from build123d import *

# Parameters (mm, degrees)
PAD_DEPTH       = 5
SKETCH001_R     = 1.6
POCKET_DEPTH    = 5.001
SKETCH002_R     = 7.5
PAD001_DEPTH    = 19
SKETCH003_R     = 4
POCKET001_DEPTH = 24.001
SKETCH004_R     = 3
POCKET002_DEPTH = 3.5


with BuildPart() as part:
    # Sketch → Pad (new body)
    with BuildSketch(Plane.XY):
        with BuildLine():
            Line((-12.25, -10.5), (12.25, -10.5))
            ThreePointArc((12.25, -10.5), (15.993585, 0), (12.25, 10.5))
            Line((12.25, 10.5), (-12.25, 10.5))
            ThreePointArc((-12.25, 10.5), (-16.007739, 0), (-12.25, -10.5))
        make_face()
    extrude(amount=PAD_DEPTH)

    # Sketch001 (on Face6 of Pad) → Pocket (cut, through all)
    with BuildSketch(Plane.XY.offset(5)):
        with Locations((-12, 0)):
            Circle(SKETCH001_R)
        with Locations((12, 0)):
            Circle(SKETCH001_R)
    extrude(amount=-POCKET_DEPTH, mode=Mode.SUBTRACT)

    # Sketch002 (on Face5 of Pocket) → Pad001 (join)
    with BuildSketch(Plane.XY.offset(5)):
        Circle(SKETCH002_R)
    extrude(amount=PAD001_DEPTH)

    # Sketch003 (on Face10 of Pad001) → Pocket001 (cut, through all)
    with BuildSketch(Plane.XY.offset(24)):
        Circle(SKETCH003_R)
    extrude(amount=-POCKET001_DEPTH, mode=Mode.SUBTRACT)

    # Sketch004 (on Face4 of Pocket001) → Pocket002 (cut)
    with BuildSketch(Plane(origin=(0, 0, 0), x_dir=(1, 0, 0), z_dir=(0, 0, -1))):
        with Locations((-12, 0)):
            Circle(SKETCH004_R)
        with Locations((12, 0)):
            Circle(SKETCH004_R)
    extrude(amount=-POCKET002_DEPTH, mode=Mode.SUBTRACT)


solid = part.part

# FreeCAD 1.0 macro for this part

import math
import FreeCAD as App
import Part
import Sketcher

V = App.Vector
Q = App.Units.Quantity

doc = App.newDocument("Part")
body = doc.addObject("PartDesign::Body", "Body")

sketch1 = body.newObject("Sketcher::SketchObject", "Sketch")
sketch1.AttachmentSupport = (doc.getObject("XY_Plane"), [""])
sketch1.MapMode = "FlatFace"
sketch1.addGeometry([
    Part.LineSegment(V(-12.25, -10.5, 0), V(12.25, -10.5, 0)),
    Part.ArcOfCircle(Part.Circle(V(-0.603397, 0, 0), V(0, 0, 1), 16.596982), math.radians(-39.245546), math.radians(39.245546)),
    Part.LineSegment(V(12.25, 10.5, 0), V(-12.25, 10.5, 0)),
    Part.ArcOfCircle(Part.Circle(V(0.540856, 0, 0), V(0, 0, 1), 16.548595), math.radians(140.617464), math.radians(219.382536)),
], False)
sketch1.addConstraint([
    Sketcher.Constraint("Coincident", 0, 2, 1, 1),
    Sketcher.Constraint("Coincident", 1, 2, 2, 1),
    Sketcher.Constraint("Coincident", 2, 2, 3, 1),
    Sketcher.Constraint("Coincident", 3, 2, 0, 1),
    Sketcher.Constraint("Horizontal", 0),
    Sketcher.Constraint("Horizontal", 2),
    Sketcher.Constraint("Symmetric", 0, 2, 2, 2, -1, 1),
    Sketcher.Constraint("PointOnObject", 1, 3, -1),
    Sketcher.Constraint("PointOnObject", 3, 3, -1),
    Sketcher.Constraint("DistanceX", 0, 1, 0, 2, Q("24.5 mm")),
    Sketcher.Constraint("DistanceY", 0, 2, 1, 2, Q("21 mm")),
    Sketcher.Constraint("Radius", 1, Q("16.596982 mm")),
    Sketcher.Constraint("Radius", 3, Q("16.548595 mm")),
])
pad1 = body.newObject("PartDesign::Pad", "Pad")
pad1.Profile = sketch1
pad1.Length = 5

sketch2 = body.newObject("Sketcher::SketchObject", "Sketch001")
sketch2.AttachmentSupport = (doc.getObject("XY_Plane"), [""])
sketch2.MapMode = "FlatFace"
sketch2.AttachmentOffset = App.Placement(V(0, 0, 5), App.Rotation())
sketch2.addGeometry([
    Part.Circle(V(-12, 0, 0), V(0, 0, 1), 1.6),
    Part.Circle(V(12, 0, 0), V(0, 0, 1), 1.6),
], False)
sketch2.addConstraint([
    Sketcher.Constraint("Equal", 0, 1),
    Sketcher.Constraint("Symmetric", 0, 3, 1, 3, -1, 1),
    Sketcher.Constraint("PointOnObject", 0, 3, -1),
    Sketcher.Constraint("Diameter", 0, Q("3.2 mm")),
    Sketcher.Constraint("DistanceX", 0, 3, -1, 1, Q("12 mm")),
])
pocket1 = body.newObject("PartDesign::Pocket", "Pocket")
pocket1.Profile = sketch2
pocket1.Type = "ThroughAll"

sketch3 = body.newObject("Sketcher::SketchObject", "Sketch002")
sketch3.AttachmentSupport = (doc.getObject("XY_Plane"), [""])
sketch3.MapMode = "FlatFace"
sketch3.AttachmentOffset = App.Placement(V(0, 0, 5), App.Rotation())
sketch3.addGeometry(Part.Circle(V(0, 0, 0), V(0, 0, 1), 7.5), False)
sketch3.addConstraint([
    Sketcher.Constraint("Coincident", 0, 3, -1, 1),
    Sketcher.Constraint("Diameter", 0, Q("15 mm")),
])
pad2 = body.newObject("PartDesign::Pad", "Pad001")
pad2.Profile = sketch3
pad2.Length = 19

sketch4 = body.newObject("Sketcher::SketchObject", "Sketch003")
sketch4.AttachmentSupport = (doc.getObject("XY_Plane"), [""])
sketch4.MapMode = "FlatFace"
sketch4.AttachmentOffset = App.Placement(V(0, 0, 24), App.Rotation())
sketch4.addGeometry(Part.Circle(V(0, 0, 0), V(0, 0, 1), 4), False)
sketch4.addConstraint([
    Sketcher.Constraint("Coincident", 0, 3, -1, 1),
    Sketcher.Constraint("Diameter", 0, Q("8 mm")),
])
pocket2 = body.newObject("PartDesign::Pocket", "Pocket001")
pocket2.Profile = sketch4
pocket2.Type = "ThroughAll"

sketch5 = body.newObject("Sketcher::SketchObject", "Sketch004")
sketch5.AttachmentSupport = (doc.getObject("XY_Plane"), [""])
sketch5.MapMode = "FlatFace"
sketch5.addGeometry([
    Part.Circle(V(-12, 0, 0), V(0, 0, 1), 3),
    Part.Circle(V(12, 0, 0), V(0, 0, 1), 3),
], False)
sketch5.addConstraint([
    Sketcher.Constraint("Equal", 0, 1),
    Sketcher.Constraint("Symmetric", 0, 3, 1, 3, -1, 1),
    Sketcher.Constraint("PointOnObject", 0, 3, -1),
    Sketcher.Constraint("Diameter", 0, Q("6 mm")),
    Sketcher.Constraint("DistanceX", 0, 3, -1, 1, Q("12 mm")),
])
pocket3 = body.newObject("PartDesign::Pocket", "Pocket002")
pocket3.Profile = sketch5
pocket3.Length = 3.5
pocket3.Reversed = True

doc.recompute()
